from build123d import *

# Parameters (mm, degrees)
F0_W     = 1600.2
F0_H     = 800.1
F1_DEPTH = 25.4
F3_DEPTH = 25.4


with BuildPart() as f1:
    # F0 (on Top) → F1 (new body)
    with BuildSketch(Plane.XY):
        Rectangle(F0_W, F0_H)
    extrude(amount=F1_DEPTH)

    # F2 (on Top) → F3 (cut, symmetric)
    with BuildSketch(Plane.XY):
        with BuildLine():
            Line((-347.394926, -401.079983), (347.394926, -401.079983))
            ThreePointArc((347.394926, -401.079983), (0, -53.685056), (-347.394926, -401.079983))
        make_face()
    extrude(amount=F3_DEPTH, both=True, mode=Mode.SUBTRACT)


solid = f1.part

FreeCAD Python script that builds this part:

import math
import FreeCAD as App
import Part
import Sketcher
Q = App.Units.Quantity


def add_polygon(sketch, points):
    """Adds a closed chain of lines whose ends are joined by coincident constraints."""
    first, n = sketch.GeometryCount, len(points)
    for a, b in zip(points, points[1:] + points[:1]):
        sketch.addGeometry(Part.LineSegment(App.Vector(*a, 0), App.Vector(*b, 0)), False)
    for i in range(n):
        sketch.addConstraint(Sketcher.Constraint("Coincident", first + i, 2, first + (i + 1) % n, 1))

doc = App.newDocument("Part")
body = doc.addObject("PartDesign::Body", "Body")

sketch1 = doc.addObject("Sketcher::SketchObject", "Sketch")
body.addObject(sketch1)
sketch1.AttachmentSupport = (doc.XY_Plane, [""])
sketch1.MapMode = "FlatFace"
add_polygon(sketch1, [(-800, 400), (-800, -400), (800, -400), (800, 400)])
sketch1.addConstraint([
    Sketcher.Constraint("Vertical", 0),
    Sketcher.Constraint("Horizontal", 1),
    Sketcher.Constraint("Vertical", 2),
    Sketcher.Constraint("Horizontal", 3),
    Sketcher.Constraint("Symmetric", 0, 2, 2, 2, -1, 1),
    Sketcher.Constraint("DistanceX", 1, 1, 1, 2, Q("63 in")),
    Sketcher.Constraint("DistanceY", 0, 2, 0, 1, Q("31.5 in")),
])
pad1 = doc.addObject("PartDesign::Pad", "Pad")
body.addObject(pad1)
pad1.Profile = sketch1
pad1.Length = Q("1 in")

sketch2 = doc.addObject("Sketcher::SketchObject", "Sketch001")
body.addObject(sketch2)
sketch2.AttachmentSupport = (doc.XY_Plane, [""])
sketch2.MapMode = "FlatFace"
sketch2.addGeometry([
    Part.LineSegment(App.Vector(-347, -401, 0), App.Vector(347, -401, 0)),
    Part.ArcOfCircle(Part.Circle(App.Vector(0, -401, 0), App.Vector(0, 0, 1), 347), math.radians(0), math.radians(180)),
], False)
sketch2.addConstraint([
    Sketcher.Constraint("Coincident", 0, 1, 1, 2),
    Sketcher.Constraint("Coincident", 1, 1, 0, 2),
    Sketcher.Constraint("Horizontal", 0),
    Sketcher.Constraint("PointOnObject", 1, 3, -2),
    Sketcher.Constraint("Horizontal", 1, 3, 0, 1),
    Sketcher.Constraint("Radius", 1, 347.394926),
    Sketcher.Constraint("DistanceY", 1, 3, -1, 1, 401.079982),
])
pocket1 = doc.addObject("PartDesign::Pocket", "Pocket")
body.addObject(pocket1)
pocket1.Profile = sketch2
pocket1.Length = Q("2 in")
pocket1.Midplane = True

doc.recompute()
